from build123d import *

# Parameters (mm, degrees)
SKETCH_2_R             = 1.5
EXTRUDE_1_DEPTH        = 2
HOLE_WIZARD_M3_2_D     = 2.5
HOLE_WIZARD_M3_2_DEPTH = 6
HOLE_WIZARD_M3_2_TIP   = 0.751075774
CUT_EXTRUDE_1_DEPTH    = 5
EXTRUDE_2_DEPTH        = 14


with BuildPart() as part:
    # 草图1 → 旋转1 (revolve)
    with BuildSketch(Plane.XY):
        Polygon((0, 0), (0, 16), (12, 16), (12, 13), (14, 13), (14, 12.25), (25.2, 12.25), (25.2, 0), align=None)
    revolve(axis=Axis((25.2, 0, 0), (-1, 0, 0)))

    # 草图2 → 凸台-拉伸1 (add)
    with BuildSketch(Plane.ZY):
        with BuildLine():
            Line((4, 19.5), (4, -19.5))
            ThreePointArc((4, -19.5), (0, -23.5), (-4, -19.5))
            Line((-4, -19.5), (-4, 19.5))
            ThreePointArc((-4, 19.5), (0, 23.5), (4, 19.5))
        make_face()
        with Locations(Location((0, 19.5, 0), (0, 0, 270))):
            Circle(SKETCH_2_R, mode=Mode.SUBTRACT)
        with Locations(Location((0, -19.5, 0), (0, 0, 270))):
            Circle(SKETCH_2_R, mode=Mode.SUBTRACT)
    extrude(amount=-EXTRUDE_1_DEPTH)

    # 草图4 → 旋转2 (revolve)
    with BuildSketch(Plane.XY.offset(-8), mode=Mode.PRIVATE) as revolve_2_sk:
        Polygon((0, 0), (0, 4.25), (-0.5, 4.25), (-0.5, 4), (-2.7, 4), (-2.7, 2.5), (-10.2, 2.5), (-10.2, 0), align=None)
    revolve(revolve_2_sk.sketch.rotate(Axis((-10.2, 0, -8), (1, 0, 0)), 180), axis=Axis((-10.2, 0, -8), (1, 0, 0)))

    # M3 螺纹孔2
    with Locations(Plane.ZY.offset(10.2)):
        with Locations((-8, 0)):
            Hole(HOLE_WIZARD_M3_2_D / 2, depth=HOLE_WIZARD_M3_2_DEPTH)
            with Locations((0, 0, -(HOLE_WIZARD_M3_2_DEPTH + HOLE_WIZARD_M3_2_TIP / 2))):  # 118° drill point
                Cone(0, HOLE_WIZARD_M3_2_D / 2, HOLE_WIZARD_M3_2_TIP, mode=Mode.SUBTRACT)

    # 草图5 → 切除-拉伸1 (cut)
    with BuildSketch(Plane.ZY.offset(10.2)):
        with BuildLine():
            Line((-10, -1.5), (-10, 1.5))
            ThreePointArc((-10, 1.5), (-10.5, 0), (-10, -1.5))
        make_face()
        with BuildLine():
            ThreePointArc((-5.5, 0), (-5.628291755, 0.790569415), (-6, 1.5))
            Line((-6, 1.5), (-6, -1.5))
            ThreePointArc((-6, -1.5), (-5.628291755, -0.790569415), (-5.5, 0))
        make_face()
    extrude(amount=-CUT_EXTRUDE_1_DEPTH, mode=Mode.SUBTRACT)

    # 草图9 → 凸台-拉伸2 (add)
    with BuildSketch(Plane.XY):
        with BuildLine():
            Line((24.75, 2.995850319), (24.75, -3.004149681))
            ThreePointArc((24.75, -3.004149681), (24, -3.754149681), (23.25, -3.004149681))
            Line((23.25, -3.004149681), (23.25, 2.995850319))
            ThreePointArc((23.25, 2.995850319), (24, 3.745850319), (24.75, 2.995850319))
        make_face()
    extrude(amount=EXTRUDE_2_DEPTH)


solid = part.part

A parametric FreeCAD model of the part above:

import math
import FreeCAD as App
import Part
import Sketcher
from FreeCAD import Vector

doc = App.newDocument("Part")
body = doc.addObject("PartDesign::Body", "Body")

sketch1 = body.newObject("Sketcher::SketchObject", "Sketch")
sketch1.AttachmentSupport = (doc.getObject("XY_Plane"), [""])
sketch1.MapMode = "FlatFace"
sketch1.addGeometry(Part.LineSegment(Vector(0, 16, 0), Vector(0, 0, 0)), False)
sketch1.addGeometry(Part.LineSegment(Vector(0, 0, 0), Vector(25.2, 0, 0)), False)
sketch1.addGeometry(Part.LineSegment(Vector(25.2, 0, 0), Vector(25.2, 12.2, 0)), False)
sketch1.addGeometry(Part.LineSegment(Vector(25.2, 12.2, 0), Vector(14, 12.2, 0)), False)
sketch1.addGeometry(Part.LineSegment(Vector(14, 12.2, 0), Vector(14, 13, 0)), False)
sketch1.addGeometry(Part.LineSegment(Vector(14, 13, 0), Vector(12, 13, 0)), False)
sketch1.addGeometry(Part.LineSegment(Vector(12, 13, 0), Vector(12, 16, 0)), False)
sketch1.addGeometry(Part.LineSegment(Vector(12, 16, 0), Vector(0, 16, 0)), False)
sketch1.addConstraint(Sketcher.Constraint("Coincident", 0, 2, 1, 1))
sketch1.addConstraint(Sketcher.Constraint("Coincident", 1, 2, 2, 1))
sketch1.addConstraint(Sketcher.Constraint("Coincident", 2, 2, 3, 1))
sketch1.addConstraint(Sketcher.Constraint("Coincident", 3, 2, 4, 1))
sketch1.addConstraint(Sketcher.Constraint("Coincident", 4, 2, 5, 1))
sketch1.addConstraint(Sketcher.Constraint("Coincident", 5, 2, 6, 1))
sketch1.addConstraint(Sketcher.Constraint("Coincident", 6, 2, 7, 1))
sketch1.addConstraint(Sketcher.Constraint("Coincident", 7, 2, 0, 1))
sketch1.addConstraint(Sketcher.Constraint("Vertical", 0))
sketch1.addConstraint(Sketcher.Constraint("Horizontal", 1))
sketch1.addConstraint(Sketcher.Constraint("Vertical", 2))
sketch1.addConstraint(Sketcher.Constraint("Horizontal", 3))
sketch1.addConstraint(Sketcher.Constraint("Vertical", 4))
sketch1.addConstraint(Sketcher.Constraint("Horizontal", 5))
sketch1.addConstraint(Sketcher.Constraint("Vertical", 6))
sketch1.addConstraint(Sketcher.Constraint("Horizontal", 7))
sketch1.addConstraint(Sketcher.Constraint("Coincident", 0, 2, -1, 1))
sketch1.addConstraint(Sketcher.Constraint("DistanceX", 5, 2, 5, 1, 2.0))
sketch1.addConstraint(Sketcher.Constraint("DistanceX", 7, 2, 7, 1, 12.0))
sketch1.addConstraint(Sketcher.Constraint("DistanceY", 0, 2, 0, 1, 16.0))
sketch1.addConstraint(Sketcher.Constraint("DistanceY", 6, 1, 6, 2, 3.0))
sketch1.addConstraint(Sketcher.Constraint("DistanceX", 1, 1, 1, 2, 25.2))
sketch1.addConstraint(Sketcher.Constraint("DistanceY", 2, 1, 2, 2, 12.25))
revolution = body.newObject("PartDesign::Revolution", "Revolution")
revolution.Profile = sketch1
revolution.ReferenceAxis = (sketch1, ["H_Axis"])
revolution.Angle = 360

sketch2 = body.newObject("Sketcher::SketchObject", "Sketch001")
sketch2.AttachmentSupport = (doc.getObject("YZ_Plane"), [""])
sketch2.MapMode = "FlatFace"
sketch2.addGeometry(Part.LineSegment(Vector(-19.5, 4, 0), Vector(19.5, 4, 0)), False)
sketch2.addGeometry(Part.ArcOfCircle(Part.Circle(Vector(19.5, 0, 0), Vector(0, 0, 1), 4), math.radians(-90), math.radians(90)), False)
sketch2.addGeometry(Part.LineSegment(Vector(19.5, -4, 0), Vector(-19.5, -4, 0)), False)
sketch2.addGeometry(Part.ArcOfCircle(Part.Circle(Vector(-19.5, 0, 0), Vector(0, 0, 1), 4), math.radians(90), math.radians(270)), False)
sketch2.addGeometry(Part.Circle(Vector(-19.5, 0, 0), Vector(0, 0, 1), 1.5), False)
sketch2.addGeometry(Part.Circle(Vector(19.5, 0, 0), Vector(0, 0, 1), 1.5), False)
sketch2.addConstraint(Sketcher.Constraint("Tangent", 0, 2, 1, 2))
sketch2.addConstraint(Sketcher.Constraint("Tangent", 1, 1, 2, 1))
sketch2.addConstraint(Sketcher.Constraint("Tangent", 2, 2, 3, 2))
sketch2.addConstraint(Sketcher.Constraint("Tangent", 3, 1, 0, 1))
sketch2.addConstraint(Sketcher.Constraint("Horizontal", 0))
sketch2.addConstraint(Sketcher.Constraint("Horizontal", 2))
sketch2.addConstraint(Sketcher.Constraint("Coincident", 4, 3, 3, 3))
sketch2.addConstraint(Sketcher.Constraint("Coincident", 5, 3, 1, 3))
sketch2.addConstraint(Sketcher.Constraint("Equal", 4, 5))
sketch2.addConstraint(Sketcher.Constraint("Symmetric", 1, 3, 3, 3, -1, 1))
sketch2.addConstraint(Sketcher.Constraint("Diameter", 4, 3.0))
sketch2.addConstraint(Sketcher.Constraint("Radius", 1, 4.0))
sketch2.addConstraint(Sketcher.Constraint("DistanceX", 0, 1, 0, 2, 39.0))
pad1 = body.newObject("PartDesign::Pad", "Pad")
pad1.Profile = sketch2
pad1.Length = 2

sketch3 = body.newObject("Sketcher::SketchObject", "Sketch002")
sketch3.AttachmentSupport = (doc.getObject("XY_Plane"), [""])
sketch3.MapMode = "FlatFace"
sketch3.AttachmentOffset = App.Placement(Vector(0, 0, -8), App.Rotation())
sketch3.addGeometry(Part.LineSegment(Vector(0, 0, 0), Vector(0, 4.25, 0)), False)
sketch3.addGeometry(Part.LineSegment(Vector(0, 4.25, 0), Vector(-0.5, 4.25, 0)), False)
sketch3.addGeometry(Part.LineSegment(Vector(-0.5, 4.25, 0), Vector(-0.5, 4, 0)), False)
sketch3.addGeometry(Part.LineSegment(Vector(-0.5, 4, 0), Vector(-2.7, 4, 0)), False)
sketch3.addGeometry(Part.LineSegment(Vector(-2.7, 4, 0), Vector(-2.7, 2.5, 0)), False)
sketch3.addGeometry(Part.LineSegment(Vector(-2.7, 2.5, 0), Vector(-10.2, 2.5, 0)), False)
sketch3.addGeometry(Part.LineSegment(Vector(-10.2, 2.5, 0), Vector(-10.2, 0, 0)), False)
sketch3.addGeometry(Part.LineSegment(Vector(-10.2, 0, 0), Vector(0, 0, 0)), False)
sketch3.addConstraint(Sketcher.Constraint("Coincident", 0, 2, 1, 1))
sketch3.addConstraint(Sketcher.Constraint("Coincident", 1, 2, 2, 1))
sketch3.addConstraint(Sketcher.Constraint("Coincident", 2, 2, 3, 1))
sketch3.addConstraint(Sketcher.Constraint("Coincident", 3, 2, 4, 1))
sketch3.addConstraint(Sketcher.Constraint("Coincident", 4, 2, 5, 1))
sketch3.addConstraint(Sketcher.Constraint("Coincident", 5, 2, 6, 1))
sketch3.addConstraint(Sketcher.Constraint("Coincident", 6, 2, 7, 1))
sketch3.addConstraint(Sketcher.Constraint("Coincident", 7, 2, 0, 1))
sketch3.addConstraint(Sketcher.Constraint("Vertical", 0))
sketch3.addConstraint(Sketcher.Constraint("Horizontal", 1))
sketch3.addConstraint(Sketcher.Constraint("Vertical", 2))
sketch3.addConstraint(Sketcher.Constraint("Horizontal", 3))
sketch3.addConstraint(Sketcher.Constraint("Vertical", 4))
sketch3.addConstraint(Sketcher.Constraint("Horizontal", 5))
sketch3.addConstraint(Sketcher.Constraint("Vertical", 6))
sketch3.addConstraint(Sketcher.Constraint("Horizontal", 7))
sketch3.addConstraint(Sketcher.Constraint("Coincident", 7, 2, -1, 1))
sketch3.addConstraint(Sketcher.Constraint("DistanceX", 1, 2, 1, 1, 0.5))
sketch3.addConstraint(Sketcher.Constraint("DistanceX", 3, 2, 3, 1, 2.2))
sketch3.addConstraint(Sketcher.Constraint("DistanceX", 5, 2, 5, 1, 7.5))
sketch3.addConstraint(Sketcher.Constraint("DistanceY", 4, 2, 4, 1, 1.5))
sketch3.addConstraint(Sketcher.Constraint("DistanceY", 6, 2, 6, 1, 2.5))
sketch3.addConstraint(Sketcher.Constraint("DistanceY", 0, 1, 0, 2, 4.25))
revolution2 = body.newObject("PartDesign::Revolution", "Revolution001")
revolution2.Profile = sketch3
revolution2.ReferenceAxis = (sketch3, ["H_Axis"])
revolution2.Angle = 360

sketch4 = body.newObject("Sketcher::SketchObject", "Sketch003")
sketch4.AttachmentSupport = (doc.getObject("YZ_Plane"), [""])
sketch4.MapMode = "FlatFace"
sketch4.AttachmentOffset = App.Placement(Vector(0, 0, -10.2), App.Rotation())
sketch4.addGeometry(Part.Circle(Vector(0, -8, 0), Vector(0, 0, 1), 1.2), False)
sketch4.addConstraint(Sketcher.Constraint("PointOnObject", 0, 3, -2))
sketch4.addConstraint(Sketcher.Constraint("Diameter", 0, 2.5))
sketch4.addConstraint(Sketcher.Constraint("DistanceY", 0, 3, -1, 1, 8.0))
doc.recompute()
hole = body.newObject("PartDesign::Hole", "Hole")
hole.Profile = sketch4
hole.ThreadType = "None"
hole.Diameter = 2.5
hole.DepthType = "Dimension"
hole.Depth = 6
hole.DrillPoint = "Angled"
hole.DrillPointAngle = 118
hole.Reversed = True

sketch5 = body.newObject("Sketcher::SketchObject", "Sketch004")
sketch5.AttachmentSupport = (doc.getObject("YZ_Plane"), [""])
sketch5.MapMode = "FlatFace"
sketch5.AttachmentOffset = App.Placement(Vector(0, 0, -10.2), App.Rotation())
sketch5.addGeometry(Part.LineSegment(Vector(-1.5, -10, 0), Vector(1.5, -10, 0)), False)
sketch5.addGeometry(Part.ArcOfCircle(Part.Circle(Vector(0, -8, 0), Vector(0, 0, 1), 2.5), math.radians(-127), math.radians(-53)), False)
sketch5.addGeometry(Part.ArcOfCircle(Part.Circle(Vector(0, -8, 0), Vector(0, 0, 1), 2.5), math.radians(53), math.radians(90)), False)
sketch5.addGeometry(Part.LineSegment(Vector(1.5, -6, 0), Vector(-1.5, -6, 0)), False)
sketch5.addGeometry(Part.ArcOfCircle(Part.Circle(Vector(0, -8, 0), Vector(0, 0, 1), 2.5), math.radians(90), math.radians(127)), False)
sketch5.addConstraint(Sketcher.Constraint("Coincident", 0, 1, 1, 1))
sketch5.addConstraint(Sketcher.Constraint("Coincident", 1, 2, 0, 2))
sketch5.addConstraint(Sketcher.Constraint("Coincident", 2, 1, 3, 1))
sketch5.addConstraint(Sketcher.Constraint("Coincident", 3, 2, 4, 2))
sketch5.addConstraint(Sketcher.Constraint("Tangent", 4, 1, 2, 2))
sketch5.addConstraint(Sketcher.Constraint("Horizontal", 0))
sketch5.addConstraint(Sketcher.Constraint("Horizontal", 3))
sketch5.addConstraint(Sketcher.Constraint("Coincident", 2, 3, 1, 3))
sketch5.addConstraint(Sketcher.Constraint("Equal", 1, 2))
sketch5.addConstraint(Sketcher.Constraint("Equal", 2, 4))
sketch5.addConstraint(Sketcher.Constraint("PointOnObject", 1, 3, -2))
sketch5.addConstraint(Sketcher.Constraint("PointOnObject", 4, 1, -2))
sketch5.addConstraint(Sketcher.Constraint("Vertical", 1, 2, 2, 1))
sketch5.addConstraint(Sketcher.Constraint("Radius", 1, 2.5))
sketch5.addConstraint(Sketcher.Constraint("DistanceX", 0, 1, 0, 2, 3.0))
sketch5.addConstraint(Sketcher.Constraint("DistanceY", 1, 3, -1, 1, 8.0))
pocket1 = body.newObject("PartDesign::Pocket", "Pocket")
pocket1.Profile = sketch5
pocket1.Length = 5
pocket1.Reversed = True

sketch6 = body.newObject("Sketcher::SketchObject", "Sketch005")
sketch6.AttachmentSupport = (doc.getObject("XY_Plane"), [""])
sketch6.MapMode = "FlatFace"
sketch6.addGeometry(Part.LineSegment(Vector(24.8, -3, 0), Vector(24.8, 3, 0)), False)
sketch6.addGeometry(Part.ArcOfCircle(Part.Circle(Vector(24, 3, 0), Vector(0, 0, 1), 0.8), math.radians(0), math.radians(180)), False)
sketch6.addGeometry(Part.LineSegment(Vector(23.2, 3, 0), Vector(23.2, -3, 0)), False)
sketch6.addGeometry(Part.ArcOfCircle(Part.Circle(Vector(24, -3, 0), Vector(0, 0, 1), 0.8), math.radians(180), math.radians(360)), False)
sketch6.addConstraint(Sketcher.Constraint("Tangent", 0, 2, 1, 1))
sketch6.addConstraint(Sketcher.Constraint("Tangent", 1, 2, 2, 1))
sketch6.addConstraint(Sketcher.Constraint("Tangent", 2, 2, 3, 1))
sketch6.addConstraint(Sketcher.Constraint("Tangent", 3, 2, 0, 1))
sketch6.addConstraint(Sketcher.Constraint("Vertical", 0))
sketch6.addConstraint(Sketcher.Constraint("Vertical", 2))
sketch6.addConstraint(Sketcher.Constraint("DistanceY", 0, 1, 0, 2, 6.0))
sketch6.addConstraint(Sketcher.Constraint("Radius", 1, 0.75))
sketch6.addConstraint(Sketcher.Constraint("DistanceX", -1, 1, 1, 3, 24.0))
sketch6.addConstraint(Sketcher.Constraint("DistanceY", -1, 1, 1, 3, 2.99585))
pad2 = body.newObject("PartDesign::Pad", "Pad001")
pad2.Profile = sketch6
pad2.Length = 14

doc.recompute()
